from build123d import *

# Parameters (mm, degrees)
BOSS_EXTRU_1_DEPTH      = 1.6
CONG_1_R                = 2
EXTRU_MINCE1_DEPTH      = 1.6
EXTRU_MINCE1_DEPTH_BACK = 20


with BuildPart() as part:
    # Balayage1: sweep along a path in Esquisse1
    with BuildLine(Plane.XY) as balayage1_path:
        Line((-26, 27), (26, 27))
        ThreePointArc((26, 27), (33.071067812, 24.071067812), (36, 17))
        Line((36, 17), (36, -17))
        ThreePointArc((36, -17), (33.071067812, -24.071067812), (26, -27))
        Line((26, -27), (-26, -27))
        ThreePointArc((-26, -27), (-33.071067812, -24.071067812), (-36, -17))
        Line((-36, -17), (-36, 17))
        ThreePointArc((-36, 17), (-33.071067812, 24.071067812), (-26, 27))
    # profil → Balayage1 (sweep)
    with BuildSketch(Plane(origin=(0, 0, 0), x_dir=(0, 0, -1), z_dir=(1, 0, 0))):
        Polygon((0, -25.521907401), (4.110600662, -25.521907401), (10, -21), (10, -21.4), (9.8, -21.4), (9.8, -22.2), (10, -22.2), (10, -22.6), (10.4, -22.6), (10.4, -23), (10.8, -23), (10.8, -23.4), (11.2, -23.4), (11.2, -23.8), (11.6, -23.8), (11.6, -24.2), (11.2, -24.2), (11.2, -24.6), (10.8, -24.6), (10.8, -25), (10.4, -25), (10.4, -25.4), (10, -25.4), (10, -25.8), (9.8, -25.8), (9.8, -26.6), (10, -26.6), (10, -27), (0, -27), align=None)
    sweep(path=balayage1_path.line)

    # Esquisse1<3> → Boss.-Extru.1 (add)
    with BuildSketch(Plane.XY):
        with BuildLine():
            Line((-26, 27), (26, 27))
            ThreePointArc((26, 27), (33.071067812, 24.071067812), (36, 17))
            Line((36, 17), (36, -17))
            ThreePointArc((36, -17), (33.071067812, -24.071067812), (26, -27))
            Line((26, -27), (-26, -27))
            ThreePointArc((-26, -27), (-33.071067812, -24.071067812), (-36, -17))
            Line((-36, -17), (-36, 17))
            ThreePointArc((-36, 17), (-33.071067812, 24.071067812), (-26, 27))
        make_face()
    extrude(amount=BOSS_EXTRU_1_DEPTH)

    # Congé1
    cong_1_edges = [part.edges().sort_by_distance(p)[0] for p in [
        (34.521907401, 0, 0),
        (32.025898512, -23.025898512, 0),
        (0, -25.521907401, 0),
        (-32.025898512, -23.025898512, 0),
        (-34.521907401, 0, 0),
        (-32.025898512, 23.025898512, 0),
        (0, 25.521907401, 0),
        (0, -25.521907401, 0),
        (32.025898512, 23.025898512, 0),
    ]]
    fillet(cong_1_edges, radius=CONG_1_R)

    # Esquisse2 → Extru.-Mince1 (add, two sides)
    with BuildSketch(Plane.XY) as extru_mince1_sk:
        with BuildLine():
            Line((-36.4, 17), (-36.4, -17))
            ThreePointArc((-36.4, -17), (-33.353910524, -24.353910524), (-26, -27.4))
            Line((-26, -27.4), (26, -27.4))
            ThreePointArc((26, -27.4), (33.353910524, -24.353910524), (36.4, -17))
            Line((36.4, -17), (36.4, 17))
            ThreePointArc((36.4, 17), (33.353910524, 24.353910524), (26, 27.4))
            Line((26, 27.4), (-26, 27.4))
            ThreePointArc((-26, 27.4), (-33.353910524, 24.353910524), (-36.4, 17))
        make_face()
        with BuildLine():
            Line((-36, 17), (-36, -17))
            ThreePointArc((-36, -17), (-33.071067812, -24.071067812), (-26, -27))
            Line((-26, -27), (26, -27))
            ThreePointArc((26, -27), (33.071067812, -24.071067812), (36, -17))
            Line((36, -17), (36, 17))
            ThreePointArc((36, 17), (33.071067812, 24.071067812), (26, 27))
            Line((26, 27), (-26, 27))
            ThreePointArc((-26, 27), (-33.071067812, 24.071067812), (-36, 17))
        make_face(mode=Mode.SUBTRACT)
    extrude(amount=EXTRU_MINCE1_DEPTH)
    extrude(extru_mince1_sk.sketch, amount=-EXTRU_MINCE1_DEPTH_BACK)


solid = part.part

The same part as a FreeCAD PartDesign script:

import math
import FreeCAD as App
import Part
import Sketcher
Q = App.Units.Quantity


def edges_at(feature, points):
    """Names of the edges that pass closest to the given points."""
    edges = feature.Shape.Edges
    near = lambda p: min(range(len(edges)), key=lambda i: edges[i].distToShape(Part.Vertex(*p))[0])
    return sorted({f"Edge{near(p) + 1}" for p in points})

doc = App.newDocument("Part")
body = doc.addObject("PartDesign::Body", "Body")

# Sketch on YZ plane
sketch1 = body.newObject("Sketcher::SketchObject", "Sketch")
sketch1.AttachmentSupport = (doc.getObject("YZ_Plane"), [""])
sketch1.MapMode = "FlatFace"
sketch1.addGeometry(Part.LineSegment(App.Vector(-25.52, -4.11, 0), App.Vector(-25.52, 0, 0)), False)
sketch1.addGeometry(Part.LineSegment(App.Vector(-25.52, 0, 0), App.Vector(-27, 0, 0)), False)
sketch1.addGeometry(Part.LineSegment(App.Vector(-27, 0, 0), App.Vector(-27, -10, 0)), False)
sketch1.addGeometry(Part.LineSegment(App.Vector(-27, -10, 0), App.Vector(-26.6, -10, 0)), False)
sketch1.addGeometry(Part.LineSegment(App.Vector(-26.6, -10, 0), App.Vector(-26.6, -9.8, 0)), False)
sketch1.addGeometry(Part.LineSegment(App.Vector(-26.6, -9.8, 0), App.Vector(-25.8, -9.8, 0)), False)
sketch1.addGeometry(Part.LineSegment(App.Vector(-25.8, -9.8, 0), App.Vector(-25.8, -10, 0)), False)
sketch1.addGeometry(Part.LineSegment(App.Vector(-25.8, -10, 0), App.Vector(-25.4, -10, 0)), False)
sketch1.addGeometry(Part.LineSegment(App.Vector(-25.4, -10, 0), App.Vector(-25.4, -10.4, 0)), False)
sketch1.addGeometry(Part.LineSegment(App.Vector(-25.4, -10.4, 0), App.Vector(-25, -10.4, 0)), False)
sketch1.addGeometry(Part.LineSegment(App.Vector(-25, -10.4, 0), App.Vector(-25, -10.8, 0)), False)
sketch1.addGeometry(Part.LineSegment(App.Vector(-25, -10.8, 0), App.Vector(-24.6, -10.8, 0)), False)
sketch1.addGeometry(Part.LineSegment(App.Vector(-24.6, -10.8, 0), App.Vector(-24.6, -11.2, 0)), False)
sketch1.addGeometry(Part.LineSegment(App.Vector(-24.6, -11.2, 0), App.Vector(-24.2, -11.2, 0)), False)
sketch1.addGeometry(Part.LineSegment(App.Vector(-24.2, -11.2, 0), App.Vector(-24.2, -11.6, 0)), False)
sketch1.addGeometry(Part.LineSegment(App.Vector(-24.2, -11.6, 0), App.Vector(-23.8, -11.6, 0)), False)
sketch1.addGeometry(Part.LineSegment(App.Vector(-23.8, -11.6, 0), App.Vector(-23.8, -11.2, 0)), False)
sketch1.addGeometry(Part.LineSegment(App.Vector(-23.8, -11.2, 0), App.Vector(-23.4, -11.2, 0)), False)
sketch1.addGeometry(Part.LineSegment(App.Vector(-23.4, -11.2, 0), App.Vector(-23.4, -10.8, 0)), False)
sketch1.addGeometry(Part.LineSegment(App.Vector(-23.4, -10.8, 0), App.Vector(-23, -10.8, 0)), False)
sketch1.addGeometry(Part.LineSegment(App.Vector(-23, -10.8, 0), App.Vector(-23, -10.4, 0)), False)
sketch1.addGeometry(Part.LineSegment(App.Vector(-23, -10.4, 0), App.Vector(-22.6, -10.4, 0)), False)
sketch1.addGeometry(Part.LineSegment(App.Vector(-22.6, -10.4, 0), App.Vector(-22.6, -10, 0)), False)
sketch1.addGeometry(Part.LineSegment(App.Vector(-22.6, -10, 0), App.Vector(-22.2, -10, 0)), False)
sketch1.addGeometry(Part.LineSegment(App.Vector(-22.2, -10, 0), App.Vector(-22.2, -9.8, 0)), False)
sketch1.addGeometry(Part.LineSegment(App.Vector(-22.2, -9.8, 0), App.Vector(-21.4, -9.8, 0)), False)
sketch1.addGeometry(Part.LineSegment(App.Vector(-21.4, -9.8, 0), App.Vector(-21.4, -10, 0)), False)
sketch1.addGeometry(Part.LineSegment(App.Vector(-21.4, -10, 0), App.Vector(-21, -10, 0)), False)
sketch1.addGeometry(Part.LineSegment(App.Vector(-21, -10, 0), App.Vector(-25.52, -4.11, 0)), False)
sketch1.addConstraint(Sketcher.Constraint("Coincident", 0, 2, 1, 1))
sketch1.addConstraint(Sketcher.Constraint("Coincident", 1, 2, 2, 1))
sketch1.addConstraint(Sketcher.Constraint("Coincident", 2, 2, 3, 1))
sketch1.addConstraint(Sketcher.Constraint("Coincident", 3, 2, 4, 1))
sketch1.addConstraint(Sketcher.Constraint("Coincident", 4, 2, 5, 1))
sketch1.addConstraint(Sketcher.Constraint("Coincident", 5, 2, 6, 1))
sketch1.addConstraint(Sketcher.Constraint("Coincident", 6, 2, 7, 1))
sketch1.addConstraint(Sketcher.Constraint("Coincident", 7, 2, 8, 1))
sketch1.addConstraint(Sketcher.Constraint("Coincident", 8, 2, 9, 1))
sketch1.addConstraint(Sketcher.Constraint("Coincident", 9, 2, 10, 1))
sketch1.addConstraint(Sketcher.Constraint("Coincident", 10, 2, 11, 1))
sketch1.addConstraint(Sketcher.Constraint("Coincident", 11, 2, 12, 1))
sketch1.addConstraint(Sketcher.Constraint("Coincident", 12, 2, 13, 1))
sketch1.addConstraint(Sketcher.Constraint("Coincident", 13, 2, 14, 1))
sketch1.addConstraint(Sketcher.Constraint("Coincident", 14, 2, 15, 1))
sketch1.addConstraint(Sketcher.Constraint("Coincident", 15, 2, 16, 1))
sketch1.addConstraint(Sketcher.Constraint("Coincident", 16, 2, 17, 1))
sketch1.addConstraint(Sketcher.Constraint("Coincident", 17, 2, 18, 1))
sketch1.addConstraint(Sketcher.Constraint("Coincident", 18, 2, 19, 1))
sketch1.addConstraint(Sketcher.Constraint("Coincident", 19, 2, 20, 1))
sketch1.addConstraint(Sketcher.Constraint("Coincident", 20, 2, 21, 1))
sketch1.addConstraint(Sketcher.Constraint("Coincident", 21, 2, 22, 1))
sketch1.addConstraint(Sketcher.Constraint("Coincident", 22, 2, 23, 1))
sketch1.addConstraint(Sketcher.Constraint("Coincident", 23, 2, 24, 1))
sketch1.addConstraint(Sketcher.Constraint("Coincident", 24, 2, 25, 1))
sketch1.addConstraint(Sketcher.Constraint("Coincident", 25, 2, 26, 1))
sketch1.addConstraint(Sketcher.Constraint("Coincident", 26, 2, 27, 1))
sketch1.addConstraint(Sketcher.Constraint("Coincident", 27, 2, 28, 1))
sketch1.addConstraint(Sketcher.Constraint("Coincident", 28, 2, 0, 1))
sketch1.addConstraint(Sketcher.Constraint("Vertical", 0))
sketch1.addConstraint(Sketcher.Constraint("Horizontal", 1))
sketch1.addConstraint(Sketcher.Constraint("Vertical", 2))
sketch1.addConstraint(Sketcher.Constraint("Horizontal", 3))
sketch1.addConstraint(Sketcher.Constraint("Vertical", 4))
sketch1.addConstraint(Sketcher.Constraint("Horizontal", 5))
sketch1.addConstraint(Sketcher.Constraint("Vertical", 6))
sketch1.addConstraint(Sketcher.Constraint("Horizontal", 7))
sketch1.addConstraint(Sketcher.Constraint("Vertical", 8))
sketch1.addConstraint(Sketcher.Constraint("Horizontal", 9))
sketch1.addConstraint(Sketcher.Constraint("Vertical", 10))
sketch1.addConstraint(Sketcher.Constraint("Horizontal", 11))
sketch1.addConstraint(Sketcher.Constraint("Vertical", 12))
sketch1.addConstraint(Sketcher.Constraint("Horizontal", 13))
sketch1.addConstraint(Sketcher.Constraint("Vertical", 14))
sketch1.addConstraint(Sketcher.Constraint("Horizontal", 15))
sketch1.addConstraint(Sketcher.Constraint("Vertical", 16))
sketch1.addConstraint(Sketcher.Constraint("Horizontal", 17))
sketch1.addConstraint(Sketcher.Constraint("Vertical", 18))
sketch1.addConstraint(Sketcher.Constraint("Horizontal", 19))
sketch1.addConstraint(Sketcher.Constraint("Vertical", 20))
sketch1.addConstraint(Sketcher.Constraint("Horizontal", 21))
sketch1.addConstraint(Sketcher.Constraint("Vertical", 22))
sketch1.addConstraint(Sketcher.Constraint("Horizontal", 23))
sketch1.addConstraint(Sketcher.Constraint("Vertical", 24))
sketch1.addConstraint(Sketcher.Constraint("Horizontal", 25))
sketch1.addConstraint(Sketcher.Constraint("Vertical", 26))
sketch1.addConstraint(Sketcher.Constraint("Horizontal", 27))
sketch1.addConstraint(Sketcher.Constraint("PointOnObject", 0, 2, -1))
sketch1.addConstraint(Sketcher.Constraint("Horizontal", 3, 2, 6, 2))
sketch1.addConstraint(Sketcher.Constraint("Horizontal", 13, 2, 16, 2))
sketch1.addConstraint(Sketcher.Constraint("Horizontal", 11, 2, 18, 2))
sketch1.addConstraint(Sketcher.Constraint("Horizontal", 9, 2, 20, 2))
sketch1.addConstraint(Sketcher.Constraint("Horizontal", 7, 2, 22, 2))
sketch1.addConstraint(Sketcher.Constraint("Horizontal", 5, 2, 24, 2))
sketch1.addConstraint(Sketcher.Constraint("Horizontal", 23, 2, 26, 2))
sketch1.addConstraint(Sketcher.Constraint("Equal", 3, 7))
sketch1.addConstraint(Sketcher.Constraint("Equal", 7, 9))
sketch1.addConstraint(Sketcher.Constraint("Equal", 9, 11))
sketch1.addConstraint(Sketcher.Constraint("Equal", 11, 13))
sketch1.addConstraint(Sketcher.Constraint("Equal", 13, 15))
sketch1.addConstraint(Sketcher.Constraint("Equal", 15, 17))
sketch1.addConstraint(Sketcher.Constraint("Equal", 17, 19))
sketch1.addConstraint(Sketcher.Constraint("Equal", 19, 21))
sketch1.addConstraint(Sketcher.Constraint("Equal", 21, 23))
sketch1.addConstraint(Sketcher.Constraint("Equal", 5, 25))
sketch1.addConstraint(Sketcher.Constraint("Equal", 23, 27))
sketch1.addConstraint(Sketcher.Constraint("Equal", 27, 8))
sketch1.addConstraint(Sketcher.Constraint("Equal", 8, 10))
sketch1.addConstraint(Sketcher.Constraint("Equal", 10, 12))
sketch1.addConstraint(Sketcher.Constraint("Equal", 12, 14))
sketch1.addConstraint(Sketcher.Constraint("DistanceY", 2, 2, 2, 1, Q("10 mm")))
sketch1.addConstraint(Sketcher.Constraint("DistanceX", 3, 1, 3, 2, Q("0.4 mm")))
sketch1.addConstraint(Sketcher.Constraint("DistanceX", 5, 1, 5, 2, Q("0.8 mm")))
sketch1.addConstraint(Sketcher.Constraint("DistanceY", 4, 1, 4, 2, Q("0.2 mm")))
sketch1.addConstraint(Sketcher.Constraint("DistanceX", 1, 2, -1, 1, Q("27 mm")))
sketch1.addConstraint(Sketcher.Constraint("DistanceY", 0, 1, 0, 2, Q("4.110601 mm")))
sketch1.addConstraint(Sketcher.Constraint("DistanceX", 1, 2, 1, 1, Q("1.478093 mm")))

# Sketch on XY plane
sketch2 = body.newObject("Sketcher::SketchObject", "Sketch001")
sketch2.AttachmentSupport = (doc.getObject("XY_Plane"), [""])
sketch2.MapMode = "FlatFace"
sketch2.addGeometry(Part.LineSegment(App.Vector(-26, 27, 0), App.Vector(26, 27, 0)), False)
sketch2.addGeometry(Part.ArcOfCircle(Part.Circle(App.Vector(26, 17, 0), App.Vector(0, 0, 1), 10), math.radians(0), math.radians(90)), False)
sketch2.addGeometry(Part.LineSegment(App.Vector(36, 17, 0), App.Vector(36, -17, 0)), False)
sketch2.addGeometry(Part.ArcOfCircle(Part.Circle(App.Vector(26, -17, 0), App.Vector(0, 0, 1), 10), math.radians(-90), math.radians(0)), False)
sketch2.addGeometry(Part.LineSegment(App.Vector(26, -27, 0), App.Vector(-26, -27, 0)), False)
sketch2.addGeometry(Part.ArcOfCircle(Part.Circle(App.Vector(-26, -17, 0), App.Vector(0, 0, 1), 10), math.radians(180), math.radians(270)), False)
sketch2.addGeometry(Part.LineSegment(App.Vector(-36, -17, 0), App.Vector(-36, 17, 0)), False)
sketch2.addGeometry(Part.ArcOfCircle(Part.Circle(App.Vector(-26, 17, 0), App.Vector(0, 0, 1), 10), math.radians(90), math.radians(180)), False)
sketch2.addConstraint(Sketcher.Constraint("Tangent", 0, 2, 1, 2))
sketch2.addConstraint(Sketcher.Constraint("Tangent", 1, 1, 2, 1))
sketch2.addConstraint(Sketcher.Constraint("Tangent", 2, 2, 3, 2))
sketch2.addConstraint(Sketcher.Constraint("Tangent", 3, 1, 4, 1))
sketch2.addConstraint(Sketcher.Constraint("Tangent", 4, 2, 5, 2))
sketch2.addConstraint(Sketcher.Constraint("Tangent", 5, 1, 6, 1))
sketch2.addConstraint(Sketcher.Constraint("Tangent", 6, 2, 7, 2))
sketch2.addConstraint(Sketcher.Constraint("Tangent", 7, 1, 0, 1))
sketch2.addConstraint(Sketcher.Constraint("Horizontal", 0))
sketch2.addConstraint(Sketcher.Constraint("Vertical", 2))
sketch2.addConstraint(Sketcher.Constraint("Horizontal", 4))
sketch2.addConstraint(Sketcher.Constraint("Vertical", 6))
sketch2.addConstraint(Sketcher.Constraint("Equal", 1, 3))
sketch2.addConstraint(Sketcher.Constraint("Equal", 3, 5))
sketch2.addConstraint(Sketcher.Constraint("Equal", 5, 7))
sketch2.addConstraint(Sketcher.Constraint("Symmetric", 1, 3, 5, 3, -1, 1))
sketch2.addConstraint(Sketcher.Constraint("Radius", 1, Q("10 mm")))
sketch2.addConstraint(Sketcher.Constraint("DistanceX", 0, 1, 0, 2, Q("52 mm")))
sketch2.addConstraint(Sketcher.Constraint("DistanceY", 2, 2, 2, 1, Q("34 mm")))
doc.recompute()

additivepipe = body.newObject("PartDesign::AdditivePipe", "AdditivePipe")
additivepipe.Profile = sketch1
additivepipe.Spine = (sketch2, ["Edge1", "Edge2", "Edge3", "Edge4", "Edge5", "Edge6", "Edge7", "Edge8"])

# Sketch on XY plane
sketch3 = body.newObject("Sketcher::SketchObject", "Sketch002")
sketch3.AttachmentSupport = (doc.getObject("XY_Plane"), [""])
sketch3.MapMode = "FlatFace"
sketch3.addGeometry(Part.LineSegment(App.Vector(26, 27, 0), App.Vector(-26, 27, 0)), False)
sketch3.addGeometry(Part.ArcOfCircle(Part.Circle(App.Vector(-26, 17, 0), App.Vector(0, 0, 1), 10), math.radians(90), math.radians(180)), False)
sketch3.addGeometry(Part.LineSegment(App.Vector(-36, 17, 0), App.Vector(-36, -17, 0)), False)
sketch3.addGeometry(Part.ArcOfCircle(Part.Circle(App.Vector(-26, -17, 0), App.Vector(0, 0, 1), 10), math.radians(180), math.radians(270)), False)
sketch3.addGeometry(Part.LineSegment(App.Vector(-26, -27, 0), App.Vector(26, -27, 0)), False)
sketch3.addGeometry(Part.ArcOfCircle(Part.Circle(App.Vector(26, -17, 0), App.Vector(0, 0, 1), 10), math.radians(-90), math.radians(0)), False)
sketch3.addGeometry(Part.LineSegment(App.Vector(36, -17, 0), App.Vector(36, 17, 0)), False)
sketch3.addGeometry(Part.ArcOfCircle(Part.Circle(App.Vector(26, 17, 0), App.Vector(0, 0, 1), 10), math.radians(0), math.radians(90)), False)
sketch3.addConstraint(Sketcher.Constraint("Tangent", 0, 2, 1, 1))
sketch3.addConstraint(Sketcher.Constraint("Tangent", 1, 2, 2, 1))
sketch3.addConstraint(Sketcher.Constraint("Tangent", 2, 2, 3, 1))
sketch3.addConstraint(Sketcher.Constraint("Tangent", 3, 2, 4, 1))
sketch3.addConstraint(Sketcher.Constraint("Tangent", 4, 2, 5, 1))
sketch3.addConstraint(Sketcher.Constraint("Tangent", 5, 2, 6, 1))
sketch3.addConstraint(Sketcher.Constraint("Tangent", 6, 2, 7, 1))
sketch3.addConstraint(Sketcher.Constraint("Tangent", 7, 2, 0, 1))
sketch3.addConstraint(Sketcher.Constraint("Horizontal", 0))
sketch3.addConstraint(Sketcher.Constraint("Vertical", 2))
sketch3.addConstraint(Sketcher.Constraint("Horizontal", 4))
sketch3.addConstraint(Sketcher.Constraint("Vertical", 6))
sketch3.addConstraint(Sketcher.Constraint("Equal", 1, 3))
sketch3.addConstraint(Sketcher.Constraint("Equal", 3, 5))
sketch3.addConstraint(Sketcher.Constraint("Equal", 5, 7))
sketch3.addConstraint(Sketcher.Constraint("Symmetric", 1, 3, 5, 3, -1, 1))
sketch3.addConstraint(Sketcher.Constraint("Radius", 1, Q("10 mm")))
sketch3.addConstraint(Sketcher.Constraint("DistanceX", 0, 2, 0, 1, Q("52 mm")))
sketch3.addConstraint(Sketcher.Constraint("DistanceY", 2, 2, 2, 1, Q("34 mm")))
pad1 = body.newObject("PartDesign::Pad", "Pad")
pad1.Profile = sketch3
pad1.Length = 1.6
doc.recompute()

fillet = body.newObject("PartDesign::Fillet", "Fillet")
fillet.Base = (pad1, edges_at(pad1, [
    (34.522, 0, 0),
    (32.026, -23.026, 0),
    (0, -25.522, 0),
    (-32.026, -23.026, 0),
    (-34.522, 0, 0),
    (-32.026, 23.026, 0),
    (0, 25.522, 0),
    (0, -25.522, 0),
    (32.026, 23.026, 0),
]))
fillet.Radius = 2

# Sketch on XY plane
sketch4 = body.newObject("Sketcher::SketchObject", "Sketch003")
sketch4.AttachmentSupport = (doc.getObject("XY_Plane"), [""])
sketch4.MapMode = "FlatFace"
sketch4.addGeometry(Part.LineSegment(App.Vector(-36, 17, 0), App.Vector(-36, -17, 0)), False)
sketch4.addGeometry(Part.ArcOfCircle(Part.Circle(App.Vector(-26, -17, 0), App.Vector(0, 0, 1), 10), math.radians(-180), math.radians(-90)), False)
sketch4.addGeometry(Part.LineSegment(App.Vector(-26, -27, 0), App.Vector(26, -27, 0)), False)
sketch4.addGeometry(Part.ArcOfCircle(Part.Circle(App.Vector(26, -17, 0), App.Vector(0, 0, 1), 10), math.radians(-90), math.radians(0)), False)
sketch4.addGeometry(Part.LineSegment(App.Vector(36, -17, 0), App.Vector(36, 17, 0)), False)
sketch4.addGeometry(Part.ArcOfCircle(Part.Circle(App.Vector(26, 17, 0), App.Vector(0, 0, 1), 10), math.radians(0), math.radians(90)), False)
sketch4.addGeometry(Part.LineSegment(App.Vector(26, 27, 0), App.Vector(-26, 27, 0)), False)
sketch4.addGeometry(Part.ArcOfCircle(Part.Circle(App.Vector(-26, 17, 0), App.Vector(0, 0, 1), 10), math.radians(90), math.radians(180)), False)
sketch4.addGeometry(Part.LineSegment(App.Vector(-36, -17, 0), App.Vector(-36, 17, 0)), False)
sketch4.addGeometry(Part.ArcOfCircle(Part.Circle(App.Vector(-26, 17, 0), App.Vector(0, 0, 1), 10), math.radians(90), math.radians(180)), False)
sketch4.addGeometry(Part.LineSegment(App.Vector(-26, 27, 0), App.Vector(26, 27, 0)), False)
sketch4.addGeometry(Part.ArcOfCircle(Part.Circle(App.Vector(26, 17, 0), App.Vector(0, 0, 1), 10), math.radians(0), math.radians(90)), False)
sketch4.addGeometry(Part.LineSegment(App.Vector(36, 17, 0), App.Vector(36, -17, 0)), False)
sketch4.addGeometry(Part.ArcOfCircle(Part.Circle(App.Vector(26, -17, 0), App.Vector(0, 0, 1), 10), math.radians(-90), math.radians(0)), False)
sketch4.addGeometry(Part.LineSegment(App.Vector(26, -27, 0), App.Vector(-26, -27, 0)), False)
sketch4.addGeometry(Part.ArcOfCircle(Part.Circle(App.Vector(-26, -17, 0), App.Vector(0, 0, 1), 10), math.radians(180), math.radians(270)), False)
sketch4.addConstraint(Sketcher.Constraint("Tangent", 0, 2, 1, 1))
sketch4.addConstraint(Sketcher.Constraint("Tangent", 1, 2, 2, 1))
sketch4.addConstraint(Sketcher.Constraint("Tangent", 2, 2, 3, 1))
sketch4.addConstraint(Sketcher.Constraint("Tangent", 3, 2, 4, 1))
sketch4.addConstraint(Sketcher.Constraint("Tangent", 4, 2, 5, 1))
sketch4.addConstraint(Sketcher.Constraint("Tangent", 5, 2, 6, 1))
sketch4.addConstraint(Sketcher.Constraint("Tangent", 6, 2, 7, 1))
sketch4.addConstraint(Sketcher.Constraint("Tangent", 7, 2, 0, 1))
sketch4.addConstraint(Sketcher.Constraint("Tangent", 8, 2, 9, 2))
sketch4.addConstraint(Sketcher.Constraint("Tangent", 9, 1, 10, 1))
sketch4.addConstraint(Sketcher.Constraint("Tangent", 10, 2, 11, 2))
sketch4.addConstraint(Sketcher.Constraint("Tangent", 11, 1, 12, 1))
sketch4.addConstraint(Sketcher.Constraint("Tangent", 12, 2, 13, 2))
sketch4.addConstraint(Sketcher.Constraint("Tangent", 13, 1, 14, 1))
sketch4.addConstraint(Sketcher.Constraint("Tangent", 14, 2, 15, 2))
sketch4.addConstraint(Sketcher.Constraint("Tangent", 15, 1, 8, 1))
sketch4.addConstraint(Sketcher.Constraint("Vertical", 0))
sketch4.addConstraint(Sketcher.Constraint("Horizontal", 2))
sketch4.addConstraint(Sketcher.Constraint("Vertical", 4))
sketch4.addConstraint(Sketcher.Constraint("Horizontal", 6))
sketch4.addConstraint(Sketcher.Constraint("Vertical", 8))
sketch4.addConstraint(Sketcher.Constraint("Horizontal", 10))
sketch4.addConstraint(Sketcher.Constraint("Vertical", 12))
sketch4.addConstraint(Sketcher.Constraint("Horizontal", 14))
sketch4.addConstraint(Sketcher.Constraint("Coincident", 9, 3, 7, 3))
sketch4.addConstraint(Sketcher.Constraint("Coincident", 11, 3, 5, 3))
sketch4.addConstraint(Sketcher.Constraint("Coincident", 13, 3, 3, 3))
sketch4.addConstraint(Sketcher.Constraint("Equal", 1, 3))
sketch4.addConstraint(Sketcher.Constraint("Equal", 3, 5))
sketch4.addConstraint(Sketcher.Constraint("Equal", 5, 7))
sketch4.addConstraint(Sketcher.Constraint("Equal", 13, 15))
sketch4.addConstraint(Sketcher.Constraint("Symmetric", 1, 3, 5, 3, -1, 1))
sketch4.addConstraint(Sketcher.Constraint("Radius", 9, Q("10 mm")))
sketch4.addConstraint(Sketcher.Constraint("Radius", 1, Q("10.4 mm")))
sketch4.addConstraint(Sketcher.Constraint("DistanceX", 2, 1, 2, 2, Q("52 mm")))
sketch4.addConstraint(Sketcher.Constraint("DistanceY", 0, 2, 0, 1, Q("34 mm")))
pad2 = body.newObject("PartDesign::Pad", "Pad001")
pad2.Profile = sketch4
pad2.Type = "TwoLengths"
pad2.Length = 1.6
pad2.Length2 = 20

doc.recompute()
